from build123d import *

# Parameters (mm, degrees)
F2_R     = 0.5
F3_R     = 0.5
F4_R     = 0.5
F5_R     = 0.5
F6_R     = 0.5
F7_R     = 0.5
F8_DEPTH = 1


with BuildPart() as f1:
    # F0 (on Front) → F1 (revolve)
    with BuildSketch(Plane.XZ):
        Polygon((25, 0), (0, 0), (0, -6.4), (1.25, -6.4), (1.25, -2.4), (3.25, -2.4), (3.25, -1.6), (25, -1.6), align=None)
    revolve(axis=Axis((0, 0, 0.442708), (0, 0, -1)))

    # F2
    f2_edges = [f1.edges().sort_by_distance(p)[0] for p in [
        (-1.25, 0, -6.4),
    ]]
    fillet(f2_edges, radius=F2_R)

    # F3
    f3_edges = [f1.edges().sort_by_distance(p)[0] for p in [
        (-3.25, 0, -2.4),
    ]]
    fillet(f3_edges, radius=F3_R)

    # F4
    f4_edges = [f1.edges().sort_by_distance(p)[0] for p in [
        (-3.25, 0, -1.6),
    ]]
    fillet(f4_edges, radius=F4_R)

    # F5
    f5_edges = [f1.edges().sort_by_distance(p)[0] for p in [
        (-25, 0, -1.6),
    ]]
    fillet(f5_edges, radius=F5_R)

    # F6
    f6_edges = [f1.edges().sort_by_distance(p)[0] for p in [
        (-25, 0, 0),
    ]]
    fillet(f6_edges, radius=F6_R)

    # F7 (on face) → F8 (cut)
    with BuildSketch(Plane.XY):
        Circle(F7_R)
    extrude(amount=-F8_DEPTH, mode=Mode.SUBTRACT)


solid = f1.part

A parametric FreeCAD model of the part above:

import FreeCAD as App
import Part
import Sketcher
Q = App.Units.Quantity


def edges_at(feature, points):
    """Names of the edges that pass closest to the given points."""
    edges = feature.Shape.Edges
    near = lambda p: min(range(len(edges)), key=lambda i: edges[i].distToShape(Part.Vertex(*p))[0])
    return sorted({f"Edge{near(p) + 1}" for p in points})

doc = App.newDocument("Part")
body = doc.addObject("PartDesign::Body", "Body")

# Sketch on XZ plane
sketch1 = doc.addObject("Sketcher::SketchObject", "Sketch")
body.addObject(sketch1)
sketch1.AttachmentSupport = (doc.XZ_Plane, [""])
sketch1.MapMode = "FlatFace"
sketch1.addGeometry(Part.LineSegment(App.Vector(25, 0, 0), App.Vector(0, 0, 0)), False)
sketch1.addGeometry(Part.LineSegment(App.Vector(0, 0, 0), App.Vector(0, -6.4, 0)), False)
sketch1.addGeometry(Part.LineSegment(App.Vector(0, -6.4, 0), App.Vector(1.2, -6.4, 0)), False)
sketch1.addGeometry(Part.LineSegment(App.Vector(1.2, -6.4, 0), App.Vector(1.2, -2.4, 0)), False)
sketch1.addGeometry(Part.LineSegment(App.Vector(1.2, -2.4, 0), App.Vector(3.2, -2.4, 0)), False)
sketch1.addGeometry(Part.LineSegment(App.Vector(3.2, -2.4, 0), App.Vector(3.2, -1.6, 0)), False)
sketch1.addGeometry(Part.LineSegment(App.Vector(3.2, -1.6, 0), App.Vector(25, -1.6, 0)), False)
sketch1.addGeometry(Part.LineSegment(App.Vector(25, -1.6, 0), App.Vector(25, 0, 0)), False)
sketch1.addConstraint(Sketcher.Constraint("Coincident", 0, 2, 1, 1))
sketch1.addConstraint(Sketcher.Constraint("Coincident", 1, 2, 2, 1))
sketch1.addConstraint(Sketcher.Constraint("Coincident", 2, 2, 3, 1))
sketch1.addConstraint(Sketcher.Constraint("Coincident", 3, 2, 4, 1))
sketch1.addConstraint(Sketcher.Constraint("Coincident", 4, 2, 5, 1))
sketch1.addConstraint(Sketcher.Constraint("Coincident", 5, 2, 6, 1))
sketch1.addConstraint(Sketcher.Constraint("Coincident", 6, 2, 7, 1))
sketch1.addConstraint(Sketcher.Constraint("Coincident", 7, 2, 0, 1))
sketch1.addConstraint(Sketcher.Constraint("Horizontal", 0))
sketch1.addConstraint(Sketcher.Constraint("Vertical", 1))
sketch1.addConstraint(Sketcher.Constraint("Horizontal", 2))
sketch1.addConstraint(Sketcher.Constraint("Vertical", 3))
sketch1.addConstraint(Sketcher.Constraint("Horizontal", 4))
sketch1.addConstraint(Sketcher.Constraint("Vertical", 5))
sketch1.addConstraint(Sketcher.Constraint("Horizontal", 6))
sketch1.addConstraint(Sketcher.Constraint("Vertical", 7))
sketch1.addConstraint(Sketcher.Constraint("Coincident", 0, 2, -1, 1))
sketch1.addConstraint(Sketcher.Constraint("DistanceX", 0, 2, 0, 1, Q("25 mm")))
sketch1.addConstraint(Sketcher.Constraint("DistanceX", 4, 1, 4, 2, Q("2 mm")))
sketch1.addConstraint(Sketcher.Constraint("DistanceY", 3, 1, 3, 2, Q("4 mm")))
sketch1.addConstraint(Sketcher.Constraint("DistanceY", 1, 2, 1, 1, Q("6.4 mm")))
sketch1.addConstraint(Sketcher.Constraint("DistanceY", 5, 1, 5, 2, Q("0.8 mm")))
sketch1.addConstraint(Sketcher.Constraint("DistanceX", 2, 1, 2, 2, Q("1.25 mm")))
revolution = doc.addObject("PartDesign::Revolution", "Revolution")
body.addObject(revolution)
revolution.Profile = sketch1
revolution.ReferenceAxis = (sketch1, ["V_Axis"])
revolution.Angle = 360
doc.recompute()

fillet = doc.addObject("PartDesign::Fillet", "Fillet")
body.addObject(fillet)
fillet.Base = (revolution, edges_at(revolution, [(-1.25, 0, -6.4)]))
fillet.Radius = 0.5
doc.recompute()

fillet2 = doc.addObject("PartDesign::Fillet", "Fillet001")
body.addObject(fillet2)
fillet2.Base = (fillet, edges_at(fillet, [(-3.25, 0, -2.4)]))
fillet2.Radius = 0.5
doc.recompute()

fillet3 = doc.addObject("PartDesign::Fillet", "Fillet002")
body.addObject(fillet3)
fillet3.Base = (fillet2, edges_at(fillet2, [(-3.25, 0, -1.6)]))
fillet3.Radius = 0.5
doc.recompute()

fillet4 = doc.addObject("PartDesign::Fillet", "Fillet003")
body.addObject(fillet4)
fillet4.Base = (fillet3, edges_at(fillet3, [(-25, 0, -1.6)]))
fillet4.Radius = 0.5
doc.recompute()

fillet5 = doc.addObject("PartDesign::Fillet", "Fillet004")
body.addObject(fillet5)
fillet5.Base = (fillet4, edges_at(fillet4, [(-25, 0, 0)]))
fillet5.Radius = 0.5

# Sketch on XY plane
sketch2 = doc.addObject("Sketcher::SketchObject", "Sketch001")
body.addObject(sketch2)
sketch2.AttachmentSupport = (doc.XY_Plane, [""])
sketch2.MapMode = "FlatFace"
sketch2.addGeometry(Part.Circle(App.Vector(0, 0, 0), App.Vector(0, 0, 1), 0.5), False)
sketch2.addConstraint(Sketcher.Constraint("Coincident", 0, 3, -1, 1))
sketch2.addConstraint(Sketcher.Constraint("Diameter", 0, Q("1 mm")))
pocket1 = doc.addObject("PartDesign::Pocket", "Pocket")
body.addObject(pocket1)
pocket1.Profile = sketch2
pocket1.Length = 1

doc.recompute()
